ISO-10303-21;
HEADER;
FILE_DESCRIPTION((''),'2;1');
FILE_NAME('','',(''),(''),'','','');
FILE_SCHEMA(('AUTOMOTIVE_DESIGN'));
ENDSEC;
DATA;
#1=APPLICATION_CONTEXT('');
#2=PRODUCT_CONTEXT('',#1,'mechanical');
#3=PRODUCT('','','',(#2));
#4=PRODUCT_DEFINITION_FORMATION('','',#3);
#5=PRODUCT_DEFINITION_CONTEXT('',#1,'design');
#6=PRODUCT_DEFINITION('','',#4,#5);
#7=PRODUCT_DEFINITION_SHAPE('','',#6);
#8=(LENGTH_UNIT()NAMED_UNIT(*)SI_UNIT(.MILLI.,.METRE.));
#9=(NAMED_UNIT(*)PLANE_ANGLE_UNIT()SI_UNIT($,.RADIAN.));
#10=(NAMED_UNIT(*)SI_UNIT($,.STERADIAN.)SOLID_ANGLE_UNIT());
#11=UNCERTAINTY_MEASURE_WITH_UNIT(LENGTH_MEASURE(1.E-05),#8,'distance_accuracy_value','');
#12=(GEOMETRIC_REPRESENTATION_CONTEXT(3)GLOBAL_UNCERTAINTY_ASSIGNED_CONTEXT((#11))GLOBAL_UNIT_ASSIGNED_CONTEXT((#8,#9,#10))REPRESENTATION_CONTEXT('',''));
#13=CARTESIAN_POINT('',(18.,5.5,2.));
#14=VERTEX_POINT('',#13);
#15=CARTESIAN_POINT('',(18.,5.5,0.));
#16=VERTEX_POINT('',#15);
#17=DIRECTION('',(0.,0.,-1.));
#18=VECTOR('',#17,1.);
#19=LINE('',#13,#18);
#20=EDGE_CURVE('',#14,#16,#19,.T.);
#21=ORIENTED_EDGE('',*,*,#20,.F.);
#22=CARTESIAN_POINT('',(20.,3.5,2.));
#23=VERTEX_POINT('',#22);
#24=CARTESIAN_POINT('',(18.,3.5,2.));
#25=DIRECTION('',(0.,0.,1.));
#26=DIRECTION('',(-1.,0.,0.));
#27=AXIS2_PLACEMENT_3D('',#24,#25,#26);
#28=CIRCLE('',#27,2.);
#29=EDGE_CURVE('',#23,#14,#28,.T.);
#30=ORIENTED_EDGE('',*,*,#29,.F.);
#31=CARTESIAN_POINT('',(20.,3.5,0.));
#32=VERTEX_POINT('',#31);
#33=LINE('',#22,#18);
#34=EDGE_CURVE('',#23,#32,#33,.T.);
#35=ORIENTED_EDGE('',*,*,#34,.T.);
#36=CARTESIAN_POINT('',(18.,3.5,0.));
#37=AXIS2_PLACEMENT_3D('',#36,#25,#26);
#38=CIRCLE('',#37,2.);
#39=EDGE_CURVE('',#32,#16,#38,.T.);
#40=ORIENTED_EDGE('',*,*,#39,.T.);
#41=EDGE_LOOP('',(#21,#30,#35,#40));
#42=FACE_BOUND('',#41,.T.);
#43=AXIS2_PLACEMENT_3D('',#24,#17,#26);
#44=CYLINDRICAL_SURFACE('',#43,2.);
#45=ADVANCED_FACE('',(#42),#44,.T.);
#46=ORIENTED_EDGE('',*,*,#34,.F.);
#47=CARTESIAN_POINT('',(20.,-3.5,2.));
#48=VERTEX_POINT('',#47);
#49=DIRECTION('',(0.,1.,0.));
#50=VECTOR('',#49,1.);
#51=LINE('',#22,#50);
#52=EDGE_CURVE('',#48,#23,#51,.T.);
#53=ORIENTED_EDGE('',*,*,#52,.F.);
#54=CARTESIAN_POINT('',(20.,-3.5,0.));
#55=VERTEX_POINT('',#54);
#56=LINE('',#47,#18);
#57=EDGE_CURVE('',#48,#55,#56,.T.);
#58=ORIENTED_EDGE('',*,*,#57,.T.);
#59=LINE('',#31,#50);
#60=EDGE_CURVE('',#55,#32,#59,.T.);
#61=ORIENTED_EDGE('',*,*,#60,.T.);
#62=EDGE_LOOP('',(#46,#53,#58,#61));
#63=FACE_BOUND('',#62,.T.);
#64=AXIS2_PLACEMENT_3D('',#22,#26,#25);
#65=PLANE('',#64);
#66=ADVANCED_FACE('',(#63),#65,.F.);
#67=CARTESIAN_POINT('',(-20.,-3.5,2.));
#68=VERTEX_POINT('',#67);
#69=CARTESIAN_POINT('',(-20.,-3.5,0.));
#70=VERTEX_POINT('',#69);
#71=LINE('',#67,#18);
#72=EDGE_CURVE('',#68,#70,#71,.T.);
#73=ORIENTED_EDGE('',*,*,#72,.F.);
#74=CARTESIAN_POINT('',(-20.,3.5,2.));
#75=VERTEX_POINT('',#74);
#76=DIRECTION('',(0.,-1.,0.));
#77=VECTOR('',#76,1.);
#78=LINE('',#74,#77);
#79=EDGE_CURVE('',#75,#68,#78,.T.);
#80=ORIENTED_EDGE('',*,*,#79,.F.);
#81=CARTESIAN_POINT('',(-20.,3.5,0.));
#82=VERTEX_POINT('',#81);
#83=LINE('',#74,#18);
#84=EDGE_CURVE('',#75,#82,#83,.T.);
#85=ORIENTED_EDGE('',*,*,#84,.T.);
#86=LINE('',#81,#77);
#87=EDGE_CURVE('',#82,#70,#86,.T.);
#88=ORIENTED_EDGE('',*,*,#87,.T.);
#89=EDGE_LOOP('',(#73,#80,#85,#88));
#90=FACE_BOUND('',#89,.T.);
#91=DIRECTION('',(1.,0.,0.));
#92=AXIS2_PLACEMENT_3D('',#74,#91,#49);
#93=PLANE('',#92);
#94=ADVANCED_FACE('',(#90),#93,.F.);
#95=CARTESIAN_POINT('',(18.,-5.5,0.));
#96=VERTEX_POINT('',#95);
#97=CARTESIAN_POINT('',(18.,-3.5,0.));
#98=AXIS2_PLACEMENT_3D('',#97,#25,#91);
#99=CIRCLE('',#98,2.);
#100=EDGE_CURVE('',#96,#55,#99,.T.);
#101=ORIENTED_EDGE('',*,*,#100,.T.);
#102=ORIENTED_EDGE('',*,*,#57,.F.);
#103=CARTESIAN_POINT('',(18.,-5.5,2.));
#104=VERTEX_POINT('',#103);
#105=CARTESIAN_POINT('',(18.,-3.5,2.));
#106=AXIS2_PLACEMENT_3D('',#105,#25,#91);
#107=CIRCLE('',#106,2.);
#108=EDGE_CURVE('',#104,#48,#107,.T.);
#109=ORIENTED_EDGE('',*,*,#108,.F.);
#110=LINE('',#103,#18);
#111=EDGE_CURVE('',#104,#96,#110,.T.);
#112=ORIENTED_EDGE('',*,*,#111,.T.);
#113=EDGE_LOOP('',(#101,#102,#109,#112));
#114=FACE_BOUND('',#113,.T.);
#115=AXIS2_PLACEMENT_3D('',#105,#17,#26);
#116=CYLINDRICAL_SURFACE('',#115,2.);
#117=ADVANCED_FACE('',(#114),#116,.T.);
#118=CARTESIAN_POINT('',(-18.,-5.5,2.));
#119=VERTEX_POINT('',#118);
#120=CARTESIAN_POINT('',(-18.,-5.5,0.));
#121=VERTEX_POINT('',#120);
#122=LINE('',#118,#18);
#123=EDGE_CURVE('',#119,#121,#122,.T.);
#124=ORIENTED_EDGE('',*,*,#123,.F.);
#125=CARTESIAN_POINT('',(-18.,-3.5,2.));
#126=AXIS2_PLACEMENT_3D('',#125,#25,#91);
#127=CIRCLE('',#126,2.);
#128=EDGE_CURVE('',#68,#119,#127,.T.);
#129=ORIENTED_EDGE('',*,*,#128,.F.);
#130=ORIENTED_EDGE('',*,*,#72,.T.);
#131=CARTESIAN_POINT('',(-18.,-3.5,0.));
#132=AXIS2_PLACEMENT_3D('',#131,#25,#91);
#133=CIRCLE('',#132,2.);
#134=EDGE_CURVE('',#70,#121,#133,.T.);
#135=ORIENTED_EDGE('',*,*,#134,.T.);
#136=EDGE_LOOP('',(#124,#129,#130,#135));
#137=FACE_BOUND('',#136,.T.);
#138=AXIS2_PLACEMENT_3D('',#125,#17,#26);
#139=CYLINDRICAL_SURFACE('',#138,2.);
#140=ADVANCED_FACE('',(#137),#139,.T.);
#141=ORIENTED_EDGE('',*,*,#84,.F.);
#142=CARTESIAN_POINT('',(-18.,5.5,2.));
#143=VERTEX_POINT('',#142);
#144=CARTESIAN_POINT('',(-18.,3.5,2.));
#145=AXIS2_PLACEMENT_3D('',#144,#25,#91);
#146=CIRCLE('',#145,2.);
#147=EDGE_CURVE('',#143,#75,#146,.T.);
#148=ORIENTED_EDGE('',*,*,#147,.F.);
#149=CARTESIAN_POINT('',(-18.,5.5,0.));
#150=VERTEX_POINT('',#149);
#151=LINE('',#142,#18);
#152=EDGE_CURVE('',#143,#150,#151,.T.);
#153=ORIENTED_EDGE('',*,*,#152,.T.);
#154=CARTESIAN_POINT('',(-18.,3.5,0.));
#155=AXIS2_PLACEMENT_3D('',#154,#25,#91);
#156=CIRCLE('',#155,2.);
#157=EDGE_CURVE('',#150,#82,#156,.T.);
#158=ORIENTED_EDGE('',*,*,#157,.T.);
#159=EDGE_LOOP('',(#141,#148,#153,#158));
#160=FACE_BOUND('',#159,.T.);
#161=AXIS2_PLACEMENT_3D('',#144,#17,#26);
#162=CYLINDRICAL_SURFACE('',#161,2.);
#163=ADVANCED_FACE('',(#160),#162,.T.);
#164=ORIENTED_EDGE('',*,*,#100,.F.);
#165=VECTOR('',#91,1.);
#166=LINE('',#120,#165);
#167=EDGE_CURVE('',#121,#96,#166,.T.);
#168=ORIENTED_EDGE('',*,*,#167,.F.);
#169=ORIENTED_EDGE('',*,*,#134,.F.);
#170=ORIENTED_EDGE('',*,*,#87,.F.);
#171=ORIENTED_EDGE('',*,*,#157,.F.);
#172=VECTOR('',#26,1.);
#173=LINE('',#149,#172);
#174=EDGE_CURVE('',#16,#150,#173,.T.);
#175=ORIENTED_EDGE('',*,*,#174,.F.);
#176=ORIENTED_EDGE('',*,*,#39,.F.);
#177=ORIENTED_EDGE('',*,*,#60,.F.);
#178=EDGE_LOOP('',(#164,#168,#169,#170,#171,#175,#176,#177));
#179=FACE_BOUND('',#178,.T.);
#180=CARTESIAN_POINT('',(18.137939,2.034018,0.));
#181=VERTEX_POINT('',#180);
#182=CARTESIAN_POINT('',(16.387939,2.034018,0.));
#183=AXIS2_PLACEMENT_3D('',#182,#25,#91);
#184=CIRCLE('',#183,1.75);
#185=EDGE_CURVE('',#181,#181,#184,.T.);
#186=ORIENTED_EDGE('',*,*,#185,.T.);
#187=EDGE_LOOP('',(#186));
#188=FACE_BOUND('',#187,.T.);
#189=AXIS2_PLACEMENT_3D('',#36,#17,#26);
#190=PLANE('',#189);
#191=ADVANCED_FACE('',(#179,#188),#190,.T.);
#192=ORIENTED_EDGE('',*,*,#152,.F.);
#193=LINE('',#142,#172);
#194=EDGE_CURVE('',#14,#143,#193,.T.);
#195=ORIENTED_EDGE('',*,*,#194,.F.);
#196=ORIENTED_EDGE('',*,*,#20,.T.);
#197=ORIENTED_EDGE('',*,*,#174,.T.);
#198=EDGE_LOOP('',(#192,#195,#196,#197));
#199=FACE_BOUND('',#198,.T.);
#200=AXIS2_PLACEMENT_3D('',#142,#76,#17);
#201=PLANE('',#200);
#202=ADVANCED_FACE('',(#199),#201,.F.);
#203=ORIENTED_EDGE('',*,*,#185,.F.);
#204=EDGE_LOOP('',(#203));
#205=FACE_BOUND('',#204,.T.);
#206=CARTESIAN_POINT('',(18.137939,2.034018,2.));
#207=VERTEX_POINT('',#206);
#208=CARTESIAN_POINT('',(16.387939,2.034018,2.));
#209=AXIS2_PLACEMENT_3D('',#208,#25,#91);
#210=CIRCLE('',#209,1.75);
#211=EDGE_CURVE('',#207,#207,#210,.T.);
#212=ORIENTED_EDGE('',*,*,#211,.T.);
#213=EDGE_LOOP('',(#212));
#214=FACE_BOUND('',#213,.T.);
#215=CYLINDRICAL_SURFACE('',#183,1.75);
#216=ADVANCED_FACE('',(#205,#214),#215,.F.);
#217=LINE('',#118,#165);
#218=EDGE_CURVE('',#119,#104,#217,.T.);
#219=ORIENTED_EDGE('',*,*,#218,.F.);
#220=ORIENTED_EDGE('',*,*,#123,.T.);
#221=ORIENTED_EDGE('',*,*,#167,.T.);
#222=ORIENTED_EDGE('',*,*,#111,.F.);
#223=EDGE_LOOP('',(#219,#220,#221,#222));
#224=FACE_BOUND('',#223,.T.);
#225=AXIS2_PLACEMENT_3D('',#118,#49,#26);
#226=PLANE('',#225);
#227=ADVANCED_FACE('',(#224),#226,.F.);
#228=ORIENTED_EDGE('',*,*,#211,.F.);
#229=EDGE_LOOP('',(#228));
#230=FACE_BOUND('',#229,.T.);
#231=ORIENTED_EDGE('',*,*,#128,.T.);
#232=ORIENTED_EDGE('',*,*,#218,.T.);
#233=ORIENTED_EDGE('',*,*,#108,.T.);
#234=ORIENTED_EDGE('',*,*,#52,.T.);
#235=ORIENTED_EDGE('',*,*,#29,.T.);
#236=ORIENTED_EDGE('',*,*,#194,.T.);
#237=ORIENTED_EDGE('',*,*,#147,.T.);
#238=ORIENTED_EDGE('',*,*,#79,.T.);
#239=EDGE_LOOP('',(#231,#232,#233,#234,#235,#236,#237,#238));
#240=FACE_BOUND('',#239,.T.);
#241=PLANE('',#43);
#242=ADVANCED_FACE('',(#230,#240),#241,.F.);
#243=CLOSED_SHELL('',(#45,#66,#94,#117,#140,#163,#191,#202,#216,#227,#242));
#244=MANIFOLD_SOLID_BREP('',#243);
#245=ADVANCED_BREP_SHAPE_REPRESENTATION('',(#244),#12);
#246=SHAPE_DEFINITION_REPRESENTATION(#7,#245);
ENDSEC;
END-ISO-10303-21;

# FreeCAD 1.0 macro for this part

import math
import FreeCAD as App
import Part
import Sketcher
Q = App.Units.Quantity

doc = App.newDocument("Part")
params = doc.addObject("Spreadsheet::Sheet", "Params")
for row, (alias, value) in enumerate([
    ("sketch1_radius", "2 mm"),
    ("sketch1_width", "36 mm"),
    ("sketch1_height", "7 mm"),
    ("pad1_length", "2 mm"),
    ("sketch2_diameter", "3.5 mm"),
], start=1):
    params.set(f"A{row}", alias)
    params.set(f"B{row}", "=" + value)
    params.setAlias(f"B{row}", alias)

body = doc.addObject("PartDesign::Body", "Body")

# Sketch on XY plane
sketch1 = doc.addObject("Sketcher::SketchObject", "Sketch")
body.addObject(sketch1)
sketch1.AttachmentSupport = (doc.XY_Plane, [""])
sketch1.MapMode = "FlatFace"
sketch1.addGeometry([
    Part.LineSegment(App.Vector(18, 5.5, 0), App.Vector(-18, 5.5, 0)),  # 0
    Part.ArcOfCircle(Part.Circle(App.Vector(-18, 3.5, 0), App.Vector(0, 0, 1), 2), math.radians(90), math.radians(180)),  # 1
    Part.LineSegment(App.Vector(-20, 3.5, 0), App.Vector(-20, -3.5, 0)),  # 2
    Part.ArcOfCircle(Part.Circle(App.Vector(-18, -3.5, 0), App.Vector(0, 0, 1), 2), math.radians(-180), math.radians(-90)),  # 3
    Part.LineSegment(App.Vector(-18, -5.5, 0), App.Vector(18, -5.5, 0)),  # 4
    Part.ArcOfCircle(Part.Circle(App.Vector(18, -3.5, 0), App.Vector(0, 0, 1), 2), math.radians(-90), math.radians(0)),  # 5
    Part.LineSegment(App.Vector(20, -3.5, 0), App.Vector(20, 3.5, 0)),  # 6
    Part.ArcOfCircle(Part.Circle(App.Vector(18, 3.5, 0), App.Vector(0, 0, 1), 2), math.radians(0), math.radians(90)),  # 7
], False)
sketch1.addConstraint([
    Sketcher.Constraint("Tangent", 0, 2, 1, 1),
    Sketcher.Constraint("Tangent", 1, 2, 2, 1),
    Sketcher.Constraint("Tangent", 2, 2, 3, 1),
    Sketcher.Constraint("Tangent", 3, 2, 4, 1),
    Sketcher.Constraint("Tangent", 4, 2, 5, 1),
    Sketcher.Constraint("Tangent", 5, 2, 6, 1),
    Sketcher.Constraint("Tangent", 6, 2, 7, 1),
    Sketcher.Constraint("Tangent", 7, 2, 0, 1),
    Sketcher.Constraint("Horizontal", 0),
    Sketcher.Constraint("Vertical", 2),
    Sketcher.Constraint("Horizontal", 4),
    Sketcher.Constraint("Vertical", 6),
    Sketcher.Constraint("Equal", 1, 3),
    Sketcher.Constraint("Equal", 3, 5),
    Sketcher.Constraint("Equal", 5, 7),
    Sketcher.Constraint("Symmetric", 1, 3, 5, 3, -1, 1),
    Sketcher.Constraint("Radius", 1, Q("2 mm")),
    Sketcher.Constraint("DistanceX", 0, 2, 0, 1, Q("36 mm")),
    Sketcher.Constraint("DistanceY", 2, 2, 2, 1, Q("7 mm")),
])
sketch1.setExpression("Constraints[16]", "Params.sketch1_radius")
sketch1.setExpression("Constraints[17]", "Params.sketch1_width")
sketch1.setExpression("Constraints[18]", "Params.sketch1_height")
pad1 = doc.addObject("PartDesign::Pad", "Pad")
body.addObject(pad1)
pad1.Profile = sketch1
pad1.setExpression("Length", "Params.pad1_length")

# Sketch on XY plane
sketch2 = doc.addObject("Sketcher::SketchObject", "Sketch001")
body.addObject(sketch2)
sketch2.AttachmentSupport = (doc.XY_Plane, [""])
sketch2.MapMode = "FlatFace"
sketch2.AttachmentOffset = App.Placement(App.Vector(0, 0, 2), App.Rotation())
sketch2.addGeometry(Part.Circle(App.Vector(16.387939, 2.034018, 0), App.Vector(0, 0, 1), 1.75), False)
sketch2.addConstraint([
    Sketcher.Constraint("Diameter", 0, Q("3.5 mm")),
    Sketcher.Constraint("DistanceX", -1, 1, 0, 3, Q("16.387939 mm")),
    Sketcher.Constraint("DistanceY", -1, 1, 0, 3, Q("2.034018 mm")),
])
sketch2.setExpression("Constraints[0]", "Params.sketch2_diameter")
pocket1 = doc.addObject("PartDesign::Pocket", "Pocket")
body.addObject(pocket1)
pocket1.Profile = sketch2
pocket1.Type = "ThroughAll"

doc.recompute()
